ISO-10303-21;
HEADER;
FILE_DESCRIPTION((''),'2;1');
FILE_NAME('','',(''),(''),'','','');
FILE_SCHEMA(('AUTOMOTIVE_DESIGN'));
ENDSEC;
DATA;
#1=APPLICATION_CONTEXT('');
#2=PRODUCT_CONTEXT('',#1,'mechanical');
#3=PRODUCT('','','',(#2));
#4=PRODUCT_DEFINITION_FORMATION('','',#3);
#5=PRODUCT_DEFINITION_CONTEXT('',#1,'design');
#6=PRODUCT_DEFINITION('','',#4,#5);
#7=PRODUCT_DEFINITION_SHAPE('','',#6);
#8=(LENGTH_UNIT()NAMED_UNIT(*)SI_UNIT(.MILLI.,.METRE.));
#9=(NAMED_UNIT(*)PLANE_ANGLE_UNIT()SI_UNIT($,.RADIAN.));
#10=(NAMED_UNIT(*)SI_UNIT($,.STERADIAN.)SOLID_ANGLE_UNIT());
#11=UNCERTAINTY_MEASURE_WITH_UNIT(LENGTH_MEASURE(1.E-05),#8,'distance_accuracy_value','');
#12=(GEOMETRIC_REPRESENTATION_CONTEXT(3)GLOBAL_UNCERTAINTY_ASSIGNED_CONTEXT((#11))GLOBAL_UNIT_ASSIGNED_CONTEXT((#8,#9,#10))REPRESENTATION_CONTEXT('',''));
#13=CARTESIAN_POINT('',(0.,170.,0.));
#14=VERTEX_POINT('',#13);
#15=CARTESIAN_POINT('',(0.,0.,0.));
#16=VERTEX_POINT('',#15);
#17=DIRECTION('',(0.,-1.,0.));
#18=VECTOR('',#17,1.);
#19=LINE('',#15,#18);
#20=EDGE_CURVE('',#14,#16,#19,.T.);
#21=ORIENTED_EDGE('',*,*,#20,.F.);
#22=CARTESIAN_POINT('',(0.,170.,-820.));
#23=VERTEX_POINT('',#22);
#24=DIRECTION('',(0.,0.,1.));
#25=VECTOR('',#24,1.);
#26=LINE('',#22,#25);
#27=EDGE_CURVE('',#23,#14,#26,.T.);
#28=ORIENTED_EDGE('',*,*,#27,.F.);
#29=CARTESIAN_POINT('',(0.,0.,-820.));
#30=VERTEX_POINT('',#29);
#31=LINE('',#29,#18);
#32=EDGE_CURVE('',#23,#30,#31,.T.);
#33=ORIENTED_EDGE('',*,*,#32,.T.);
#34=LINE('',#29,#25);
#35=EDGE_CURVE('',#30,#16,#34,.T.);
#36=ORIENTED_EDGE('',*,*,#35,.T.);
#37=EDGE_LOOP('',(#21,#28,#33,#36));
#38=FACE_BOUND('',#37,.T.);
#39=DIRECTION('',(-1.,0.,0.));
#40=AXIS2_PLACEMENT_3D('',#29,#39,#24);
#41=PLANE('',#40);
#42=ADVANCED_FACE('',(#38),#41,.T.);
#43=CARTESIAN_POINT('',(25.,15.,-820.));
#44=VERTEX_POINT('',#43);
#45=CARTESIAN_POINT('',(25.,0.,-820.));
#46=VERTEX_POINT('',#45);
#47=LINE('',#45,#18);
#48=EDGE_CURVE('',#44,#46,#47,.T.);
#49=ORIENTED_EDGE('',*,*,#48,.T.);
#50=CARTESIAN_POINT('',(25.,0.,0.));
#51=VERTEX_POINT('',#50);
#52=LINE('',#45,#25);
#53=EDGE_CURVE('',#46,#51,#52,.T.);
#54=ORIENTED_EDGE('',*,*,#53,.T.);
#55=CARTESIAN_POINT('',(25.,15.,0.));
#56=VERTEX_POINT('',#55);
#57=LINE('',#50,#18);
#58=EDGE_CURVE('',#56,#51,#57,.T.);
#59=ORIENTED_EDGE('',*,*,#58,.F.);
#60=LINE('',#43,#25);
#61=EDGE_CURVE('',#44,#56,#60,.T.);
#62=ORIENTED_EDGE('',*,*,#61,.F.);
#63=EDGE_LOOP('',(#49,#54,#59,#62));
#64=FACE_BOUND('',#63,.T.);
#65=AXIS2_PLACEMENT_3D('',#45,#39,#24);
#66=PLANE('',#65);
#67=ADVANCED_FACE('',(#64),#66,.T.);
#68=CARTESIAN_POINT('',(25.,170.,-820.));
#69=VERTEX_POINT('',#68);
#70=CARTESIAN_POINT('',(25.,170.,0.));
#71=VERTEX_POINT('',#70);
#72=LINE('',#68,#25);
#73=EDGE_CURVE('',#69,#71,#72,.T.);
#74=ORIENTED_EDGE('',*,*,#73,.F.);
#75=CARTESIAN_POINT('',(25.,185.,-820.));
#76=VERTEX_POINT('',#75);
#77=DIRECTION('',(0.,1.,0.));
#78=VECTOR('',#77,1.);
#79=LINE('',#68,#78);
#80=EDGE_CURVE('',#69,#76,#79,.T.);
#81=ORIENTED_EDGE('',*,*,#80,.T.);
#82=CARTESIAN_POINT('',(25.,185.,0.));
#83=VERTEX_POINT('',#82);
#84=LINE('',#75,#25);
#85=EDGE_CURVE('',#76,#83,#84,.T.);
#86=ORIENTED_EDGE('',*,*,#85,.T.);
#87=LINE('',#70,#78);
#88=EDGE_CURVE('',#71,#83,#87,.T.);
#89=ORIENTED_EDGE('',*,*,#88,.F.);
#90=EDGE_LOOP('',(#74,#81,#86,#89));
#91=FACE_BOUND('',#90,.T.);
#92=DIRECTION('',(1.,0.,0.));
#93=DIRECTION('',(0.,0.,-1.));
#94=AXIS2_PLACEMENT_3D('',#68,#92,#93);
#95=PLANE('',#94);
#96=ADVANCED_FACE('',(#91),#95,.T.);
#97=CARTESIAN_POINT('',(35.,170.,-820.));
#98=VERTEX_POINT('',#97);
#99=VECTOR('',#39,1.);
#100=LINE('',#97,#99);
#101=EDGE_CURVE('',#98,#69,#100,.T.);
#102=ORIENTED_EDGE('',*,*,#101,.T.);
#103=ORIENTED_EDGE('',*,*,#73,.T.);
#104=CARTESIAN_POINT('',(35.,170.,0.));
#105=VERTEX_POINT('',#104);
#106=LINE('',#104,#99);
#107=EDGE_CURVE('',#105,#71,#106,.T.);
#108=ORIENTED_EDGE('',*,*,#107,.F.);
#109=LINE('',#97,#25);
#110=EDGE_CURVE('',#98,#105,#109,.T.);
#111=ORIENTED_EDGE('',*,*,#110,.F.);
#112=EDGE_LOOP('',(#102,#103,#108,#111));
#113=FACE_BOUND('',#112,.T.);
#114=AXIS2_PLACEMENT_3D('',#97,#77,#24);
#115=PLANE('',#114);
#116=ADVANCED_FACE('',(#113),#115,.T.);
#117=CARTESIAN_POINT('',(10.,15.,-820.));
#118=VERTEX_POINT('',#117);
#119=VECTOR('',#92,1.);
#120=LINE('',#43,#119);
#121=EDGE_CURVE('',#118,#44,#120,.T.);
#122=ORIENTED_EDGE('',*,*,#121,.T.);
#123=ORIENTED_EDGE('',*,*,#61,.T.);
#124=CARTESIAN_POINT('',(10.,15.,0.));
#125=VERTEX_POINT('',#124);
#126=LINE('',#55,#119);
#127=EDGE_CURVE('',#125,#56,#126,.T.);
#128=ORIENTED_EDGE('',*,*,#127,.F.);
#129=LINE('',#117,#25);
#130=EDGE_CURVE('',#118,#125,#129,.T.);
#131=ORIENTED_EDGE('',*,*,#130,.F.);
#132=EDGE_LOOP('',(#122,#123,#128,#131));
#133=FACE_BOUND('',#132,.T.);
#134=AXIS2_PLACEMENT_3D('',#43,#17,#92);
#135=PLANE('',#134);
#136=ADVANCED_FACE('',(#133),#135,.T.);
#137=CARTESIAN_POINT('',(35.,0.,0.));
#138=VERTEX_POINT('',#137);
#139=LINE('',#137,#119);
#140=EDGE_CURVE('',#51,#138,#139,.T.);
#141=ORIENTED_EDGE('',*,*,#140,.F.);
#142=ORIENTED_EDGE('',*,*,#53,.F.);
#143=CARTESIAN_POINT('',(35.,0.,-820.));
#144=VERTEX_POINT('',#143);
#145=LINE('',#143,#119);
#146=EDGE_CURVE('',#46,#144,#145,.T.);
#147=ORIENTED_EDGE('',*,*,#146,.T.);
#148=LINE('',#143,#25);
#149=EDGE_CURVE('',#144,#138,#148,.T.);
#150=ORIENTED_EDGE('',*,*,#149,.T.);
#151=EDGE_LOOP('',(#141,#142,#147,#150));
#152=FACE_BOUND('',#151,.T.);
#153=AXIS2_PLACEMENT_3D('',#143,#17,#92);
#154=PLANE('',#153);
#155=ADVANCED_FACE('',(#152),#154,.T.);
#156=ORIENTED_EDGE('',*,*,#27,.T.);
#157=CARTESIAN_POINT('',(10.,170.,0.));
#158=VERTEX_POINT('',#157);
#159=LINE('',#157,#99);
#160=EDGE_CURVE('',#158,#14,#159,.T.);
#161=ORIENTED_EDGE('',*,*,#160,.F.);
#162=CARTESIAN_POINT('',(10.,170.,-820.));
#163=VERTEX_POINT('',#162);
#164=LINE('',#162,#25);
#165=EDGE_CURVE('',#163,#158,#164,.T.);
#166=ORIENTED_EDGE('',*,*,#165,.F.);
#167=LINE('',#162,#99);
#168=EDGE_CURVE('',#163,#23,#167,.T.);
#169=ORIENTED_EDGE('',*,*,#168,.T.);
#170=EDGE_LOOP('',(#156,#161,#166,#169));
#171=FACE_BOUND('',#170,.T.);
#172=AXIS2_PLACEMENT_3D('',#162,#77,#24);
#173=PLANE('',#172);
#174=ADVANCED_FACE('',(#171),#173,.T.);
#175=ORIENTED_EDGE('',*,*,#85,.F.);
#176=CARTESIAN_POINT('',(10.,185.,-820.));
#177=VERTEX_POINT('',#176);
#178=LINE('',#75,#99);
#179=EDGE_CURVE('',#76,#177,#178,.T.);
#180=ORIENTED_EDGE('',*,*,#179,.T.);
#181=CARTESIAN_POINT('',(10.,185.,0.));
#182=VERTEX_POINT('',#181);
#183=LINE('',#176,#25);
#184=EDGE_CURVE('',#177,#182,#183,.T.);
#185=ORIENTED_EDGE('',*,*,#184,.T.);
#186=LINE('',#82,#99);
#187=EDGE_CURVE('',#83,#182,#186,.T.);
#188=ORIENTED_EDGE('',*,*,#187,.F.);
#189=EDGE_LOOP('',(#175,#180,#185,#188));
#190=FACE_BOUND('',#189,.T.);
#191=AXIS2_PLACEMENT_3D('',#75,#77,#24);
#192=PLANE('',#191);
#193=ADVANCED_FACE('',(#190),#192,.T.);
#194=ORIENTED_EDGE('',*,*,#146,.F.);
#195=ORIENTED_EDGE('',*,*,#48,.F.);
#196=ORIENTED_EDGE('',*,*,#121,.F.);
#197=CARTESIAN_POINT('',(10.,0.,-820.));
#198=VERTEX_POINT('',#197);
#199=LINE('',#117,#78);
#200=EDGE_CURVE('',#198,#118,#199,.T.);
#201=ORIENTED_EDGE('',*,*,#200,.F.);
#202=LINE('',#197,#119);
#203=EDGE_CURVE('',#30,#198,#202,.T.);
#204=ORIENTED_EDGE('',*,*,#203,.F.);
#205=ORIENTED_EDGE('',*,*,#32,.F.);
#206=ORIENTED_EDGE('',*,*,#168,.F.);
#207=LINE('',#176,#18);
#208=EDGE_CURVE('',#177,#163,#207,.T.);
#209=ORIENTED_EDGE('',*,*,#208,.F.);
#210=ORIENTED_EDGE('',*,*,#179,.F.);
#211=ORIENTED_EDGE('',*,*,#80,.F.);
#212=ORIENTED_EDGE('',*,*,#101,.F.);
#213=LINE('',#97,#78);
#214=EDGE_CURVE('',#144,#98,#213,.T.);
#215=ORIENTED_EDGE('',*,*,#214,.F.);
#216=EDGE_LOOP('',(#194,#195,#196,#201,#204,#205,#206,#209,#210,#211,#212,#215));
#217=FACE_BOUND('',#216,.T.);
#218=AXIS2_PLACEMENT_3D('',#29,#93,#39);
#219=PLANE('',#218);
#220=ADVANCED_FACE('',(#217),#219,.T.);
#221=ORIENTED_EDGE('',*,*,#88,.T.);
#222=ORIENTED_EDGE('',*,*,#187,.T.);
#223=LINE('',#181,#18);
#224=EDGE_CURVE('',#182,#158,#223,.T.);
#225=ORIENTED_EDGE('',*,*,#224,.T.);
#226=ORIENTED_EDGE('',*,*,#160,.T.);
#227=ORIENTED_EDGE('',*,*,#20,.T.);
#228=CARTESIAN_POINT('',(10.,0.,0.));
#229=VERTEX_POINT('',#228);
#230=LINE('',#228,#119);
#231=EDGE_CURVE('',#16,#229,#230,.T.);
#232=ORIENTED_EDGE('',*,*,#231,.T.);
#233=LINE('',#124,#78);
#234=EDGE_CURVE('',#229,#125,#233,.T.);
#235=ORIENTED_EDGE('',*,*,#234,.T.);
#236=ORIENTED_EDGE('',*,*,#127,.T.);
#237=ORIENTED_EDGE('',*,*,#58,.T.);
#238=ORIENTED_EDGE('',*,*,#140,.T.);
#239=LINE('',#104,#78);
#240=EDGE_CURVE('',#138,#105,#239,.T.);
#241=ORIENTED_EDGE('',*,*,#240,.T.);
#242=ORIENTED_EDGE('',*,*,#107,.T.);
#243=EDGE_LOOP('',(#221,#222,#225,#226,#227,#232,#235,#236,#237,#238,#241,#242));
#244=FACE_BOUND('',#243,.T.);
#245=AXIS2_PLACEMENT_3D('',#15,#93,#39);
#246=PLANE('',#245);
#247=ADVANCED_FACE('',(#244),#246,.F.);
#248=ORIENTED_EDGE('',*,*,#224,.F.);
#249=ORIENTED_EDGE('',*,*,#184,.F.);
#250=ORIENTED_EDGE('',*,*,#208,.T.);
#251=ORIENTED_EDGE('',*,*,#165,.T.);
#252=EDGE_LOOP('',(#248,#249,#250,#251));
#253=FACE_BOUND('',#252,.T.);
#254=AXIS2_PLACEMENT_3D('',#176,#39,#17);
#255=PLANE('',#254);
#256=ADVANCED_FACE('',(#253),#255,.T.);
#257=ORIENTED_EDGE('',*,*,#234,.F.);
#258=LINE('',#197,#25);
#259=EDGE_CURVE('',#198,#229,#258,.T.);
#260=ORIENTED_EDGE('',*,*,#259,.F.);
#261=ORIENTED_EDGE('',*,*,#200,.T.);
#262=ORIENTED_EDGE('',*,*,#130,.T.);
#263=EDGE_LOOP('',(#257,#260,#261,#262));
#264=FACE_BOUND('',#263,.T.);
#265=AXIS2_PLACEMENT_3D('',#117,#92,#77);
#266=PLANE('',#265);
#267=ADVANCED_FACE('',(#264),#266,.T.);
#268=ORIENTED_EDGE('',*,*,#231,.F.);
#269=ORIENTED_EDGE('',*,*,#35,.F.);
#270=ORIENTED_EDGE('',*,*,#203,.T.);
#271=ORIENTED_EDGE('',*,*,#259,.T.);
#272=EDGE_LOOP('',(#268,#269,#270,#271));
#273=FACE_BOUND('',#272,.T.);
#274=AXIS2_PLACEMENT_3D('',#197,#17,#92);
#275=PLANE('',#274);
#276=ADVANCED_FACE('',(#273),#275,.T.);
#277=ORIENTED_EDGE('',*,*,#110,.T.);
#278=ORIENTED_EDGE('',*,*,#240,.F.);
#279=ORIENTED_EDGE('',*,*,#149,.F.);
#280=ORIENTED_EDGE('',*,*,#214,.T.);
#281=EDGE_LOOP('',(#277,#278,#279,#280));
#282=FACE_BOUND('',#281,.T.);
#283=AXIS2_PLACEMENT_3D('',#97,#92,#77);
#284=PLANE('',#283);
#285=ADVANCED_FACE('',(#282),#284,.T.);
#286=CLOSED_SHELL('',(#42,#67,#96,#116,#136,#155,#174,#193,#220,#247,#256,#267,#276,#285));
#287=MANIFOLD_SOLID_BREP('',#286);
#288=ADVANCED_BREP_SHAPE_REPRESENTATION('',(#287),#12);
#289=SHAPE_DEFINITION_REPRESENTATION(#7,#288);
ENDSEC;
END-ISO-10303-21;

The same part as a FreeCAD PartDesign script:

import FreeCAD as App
import Part
import Sketcher

V = App.Vector

doc = App.newDocument("Part")
params = doc.addObject("Spreadsheet::Sheet", "Params")
for row, (alias, value) in enumerate([
    ("sketch1_width", "10 mm"),
    ("sketch1_width2", "15 mm"),
    ("sketch1_height", "170 mm"),
    ("pad1_length", "820 mm"),
], start=1):
    params.set(f"A{row}", alias)
    params.set(f"B{row}", "=" + value)
    params.setAlias(f"B{row}", alias)

body = doc.addObject("PartDesign::Body", "Body")

# Sketch on XY plane
sketch1 = body.newObject("Sketcher::SketchObject", "Sketch")
sketch1.AttachmentSupport = (doc.getObject("XY_Plane"), [""])
sketch1.MapMode = "FlatFace"
sketch1.addGeometry([
    Part.LineSegment(V(0, 170, 0), V(0, 0, 0)),  # 0
    Part.LineSegment(V(0, 0, 0), V(10, 0, 0)),  # 1
    Part.LineSegment(V(10, 0, 0), V(10, 15, 0)),  # 2
    Part.LineSegment(V(10, 15, 0), V(25, 15, 0)),  # 3
    Part.LineSegment(V(25, 15, 0), V(25, 0, 0)),  # 4
    Part.LineSegment(V(25, 0, 0), V(35, 0, 0)),  # 5
    Part.LineSegment(V(35, 0, 0), V(35, 170, 0)),  # 6
    Part.LineSegment(V(35, 170, 0), V(25, 170, 0)),  # 7
    Part.LineSegment(V(25, 170, 0), V(25, 185, 0)),  # 8
    Part.LineSegment(V(25, 185, 0), V(10, 185, 0)),  # 9
    Part.LineSegment(V(10, 185, 0), V(10, 170, 0)),  # 10
    Part.LineSegment(V(10, 170, 0), V(0, 170, 0)),  # 11
], False)
sketch1.addConstraint([
    Sketcher.Constraint("Coincident", 0, 2, 1, 1),
    Sketcher.Constraint("Coincident", 1, 2, 2, 1),
    Sketcher.Constraint("Coincident", 2, 2, 3, 1),
    Sketcher.Constraint("Coincident", 3, 2, 4, 1),
    Sketcher.Constraint("Coincident", 4, 2, 5, 1),
    Sketcher.Constraint("Coincident", 5, 2, 6, 1),
    Sketcher.Constraint("Coincident", 6, 2, 7, 1),
    Sketcher.Constraint("Coincident", 7, 2, 8, 1),
    Sketcher.Constraint("Coincident", 8, 2, 9, 1),
    Sketcher.Constraint("Coincident", 9, 2, 10, 1),
    Sketcher.Constraint("Coincident", 10, 2, 11, 1),
    Sketcher.Constraint("Coincident", 11, 2, 0, 1),
    Sketcher.Constraint("Vertical", 0),
    Sketcher.Constraint("Horizontal", 1),
    Sketcher.Constraint("Vertical", 2),
    Sketcher.Constraint("Horizontal", 3),
    Sketcher.Constraint("Vertical", 4),
    Sketcher.Constraint("Horizontal", 5),
    Sketcher.Constraint("Vertical", 6),
    Sketcher.Constraint("Horizontal", 7),
    Sketcher.Constraint("Vertical", 8),
    Sketcher.Constraint("Horizontal", 9),
    Sketcher.Constraint("Vertical", 10),
    Sketcher.Constraint("Horizontal", 11),
    Sketcher.Constraint("Coincident", 0, 2, -1, 1),
    Sketcher.Constraint("PointOnObject", 4, 2, -1),
    Sketcher.Constraint("Horizontal", 7, 2, 10, 2),
    Sketcher.Constraint("Vertical", 4, 2, 7, 2),
    Sketcher.Constraint("Vertical", 2, 2, 9, 2),
    Sketcher.Constraint("Equal", 1, 5),
    Sketcher.Constraint("Equal", 9, 2),
    Sketcher.Constraint("Equal", 4, 8),
    Sketcher.Constraint("DistanceX", 1, 1, 1, 2, 10.0),
    Sketcher.Constraint("DistanceX", 3, 1, 3, 2, 15.0),
    Sketcher.Constraint("DistanceY", 0, 2, 0, 1, 170.0),
])
sketch1.setExpression("Constraints[32]", "Params.sketch1_width")
sketch1.setExpression("Constraints[33]", "Params.sketch1_width2")
sketch1.setExpression("Constraints[34]", "Params.sketch1_height")
pad1 = body.newObject("PartDesign::Pad", "Pad")
pad1.Profile = sketch1
pad1.setExpression("Length", "Params.pad1_length")
pad1.Reversed = True

doc.recompute()
